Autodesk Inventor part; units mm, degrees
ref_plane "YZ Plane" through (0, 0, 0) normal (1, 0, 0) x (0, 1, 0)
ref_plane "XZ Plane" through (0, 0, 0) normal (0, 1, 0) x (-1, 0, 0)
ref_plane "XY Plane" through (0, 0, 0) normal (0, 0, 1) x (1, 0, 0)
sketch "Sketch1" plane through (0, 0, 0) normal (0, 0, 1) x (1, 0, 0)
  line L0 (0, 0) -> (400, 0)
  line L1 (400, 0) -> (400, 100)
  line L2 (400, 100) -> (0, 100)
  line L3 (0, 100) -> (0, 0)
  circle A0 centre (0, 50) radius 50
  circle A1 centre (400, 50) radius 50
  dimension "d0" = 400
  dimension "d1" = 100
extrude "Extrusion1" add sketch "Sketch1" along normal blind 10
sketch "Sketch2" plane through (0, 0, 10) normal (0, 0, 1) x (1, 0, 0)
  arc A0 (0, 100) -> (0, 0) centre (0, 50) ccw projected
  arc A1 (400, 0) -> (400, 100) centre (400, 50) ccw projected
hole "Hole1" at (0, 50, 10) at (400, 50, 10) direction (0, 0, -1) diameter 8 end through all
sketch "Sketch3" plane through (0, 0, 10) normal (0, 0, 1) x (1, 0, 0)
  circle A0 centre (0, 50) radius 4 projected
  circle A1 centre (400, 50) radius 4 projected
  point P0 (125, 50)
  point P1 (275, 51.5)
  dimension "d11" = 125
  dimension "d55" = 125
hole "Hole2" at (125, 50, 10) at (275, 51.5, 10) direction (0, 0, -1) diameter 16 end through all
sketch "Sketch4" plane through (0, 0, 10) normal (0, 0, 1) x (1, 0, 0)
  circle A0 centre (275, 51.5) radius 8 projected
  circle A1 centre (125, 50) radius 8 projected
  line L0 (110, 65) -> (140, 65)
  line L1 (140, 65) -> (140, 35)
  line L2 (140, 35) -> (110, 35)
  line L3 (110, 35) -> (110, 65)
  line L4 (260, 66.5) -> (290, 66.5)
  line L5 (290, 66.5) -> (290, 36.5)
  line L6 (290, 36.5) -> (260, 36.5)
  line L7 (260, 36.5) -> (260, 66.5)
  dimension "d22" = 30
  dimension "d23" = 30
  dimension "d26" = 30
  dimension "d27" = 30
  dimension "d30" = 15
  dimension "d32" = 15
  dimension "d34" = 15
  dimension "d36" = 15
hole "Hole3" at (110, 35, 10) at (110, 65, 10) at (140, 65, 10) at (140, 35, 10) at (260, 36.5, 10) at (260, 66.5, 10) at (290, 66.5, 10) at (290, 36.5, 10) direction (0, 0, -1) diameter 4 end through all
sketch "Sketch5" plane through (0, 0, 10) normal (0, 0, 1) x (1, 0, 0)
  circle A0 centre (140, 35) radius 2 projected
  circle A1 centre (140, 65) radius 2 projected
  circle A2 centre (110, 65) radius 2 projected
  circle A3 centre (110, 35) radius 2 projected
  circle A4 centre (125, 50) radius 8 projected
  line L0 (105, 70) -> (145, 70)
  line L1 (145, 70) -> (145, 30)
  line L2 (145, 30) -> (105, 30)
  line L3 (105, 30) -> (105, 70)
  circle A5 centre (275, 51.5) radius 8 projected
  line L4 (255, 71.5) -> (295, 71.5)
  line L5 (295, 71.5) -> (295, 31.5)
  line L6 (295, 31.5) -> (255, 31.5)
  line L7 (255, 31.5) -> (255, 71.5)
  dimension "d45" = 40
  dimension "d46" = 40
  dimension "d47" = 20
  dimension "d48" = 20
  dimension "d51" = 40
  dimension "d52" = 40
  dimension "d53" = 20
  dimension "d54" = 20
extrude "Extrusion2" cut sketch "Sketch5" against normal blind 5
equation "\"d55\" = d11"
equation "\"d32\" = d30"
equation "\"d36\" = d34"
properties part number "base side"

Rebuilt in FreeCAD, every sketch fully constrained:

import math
import FreeCAD as App
import Part
import Sketcher
from FreeCAD import Vector
Q = App.Units.Quantity

doc = App.newDocument("Part")
body = doc.addObject("PartDesign::Body", "Body")

# Sketch on XY plane
sketch1 = body.newObject("Sketcher::SketchObject", "Sketch")
sketch1.AttachmentSupport = (doc.getObject("XY_Plane"), [""])
sketch1.MapMode = "FlatFace"
sketch1.addGeometry(Part.LineSegment(Vector(400, 100, 0), Vector(0, 100, 0)), False)
sketch1.addGeometry(Part.ArcOfCircle(Part.Circle(Vector(0, 50, 0), Vector(0, 0, 1), 50), math.radians(90), math.radians(270)), False)
sketch1.addGeometry(Part.LineSegment(Vector(0, 0, 0), Vector(400, 0, 0)), False)
sketch1.addGeometry(Part.ArcOfCircle(Part.Circle(Vector(400, 50, 0), Vector(0, 0, 1), 50), math.radians(-90), math.radians(90)), False)
sketch1.addConstraint(Sketcher.Constraint("Tangent", 0, 2, 1, 1))
sketch1.addConstraint(Sketcher.Constraint("Tangent", 1, 2, 2, 1))
sketch1.addConstraint(Sketcher.Constraint("Tangent", 2, 2, 3, 1))
sketch1.addConstraint(Sketcher.Constraint("Tangent", 3, 2, 0, 1))
sketch1.addConstraint(Sketcher.Constraint("Horizontal", 0))
sketch1.addConstraint(Sketcher.Constraint("Horizontal", 2))
sketch1.addConstraint(Sketcher.Constraint("Coincident", 1, 2, -1, 1))
sketch1.addConstraint(Sketcher.Constraint("Radius", 1, Q("50 mm")))
sketch1.addConstraint(Sketcher.Constraint("DistanceX", 0, 2, 0, 1, Q("400 mm")))
pad1 = body.newObject("PartDesign::Pad", "Pad")
pad1.Profile = sketch1
pad1.Length = 10

# Sketch on XY plane
sketch2 = body.newObject("Sketcher::SketchObject", "Sketch001")
sketch2.AttachmentSupport = (doc.getObject("XY_Plane"), [""])
sketch2.MapMode = "FlatFace"
sketch2.AttachmentOffset = App.Placement(Vector(0, 0, 10), App.Rotation())
sketch2.addGeometry(Part.Circle(Vector(0, 50, 0), Vector(0, 0, 1), 4), False)
sketch2.addGeometry(Part.Circle(Vector(400, 50, 0), Vector(0, 0, 1), 4), False)
sketch2.addConstraint(Sketcher.Constraint("Equal", 0, 1))
sketch2.addConstraint(Sketcher.Constraint("PointOnObject", 0, 3, -2))
sketch2.addConstraint(Sketcher.Constraint("Horizontal", 0, 3, 1, 3))
sketch2.addConstraint(Sketcher.Constraint("Diameter", 0, Q("8 mm")))
sketch2.addConstraint(Sketcher.Constraint("DistanceY", -1, 1, 0, 3, Q("50 mm")))
sketch2.addConstraint(Sketcher.Constraint("DistanceX", -1, 1, 1, 3, Q("400 mm")))
doc.recompute()
hole = body.newObject("PartDesign::Hole", "Hole")
hole.Profile = sketch2
hole.ThreadType = "None"
hole.Diameter = 8
hole.DepthType = "ThroughAll"

# Sketch on XY plane
sketch3 = body.newObject("Sketcher::SketchObject", "Sketch002")
sketch3.AttachmentSupport = (doc.getObject("XY_Plane"), [""])
sketch3.MapMode = "FlatFace"
sketch3.AttachmentOffset = App.Placement(Vector(0, 0, 10), App.Rotation())
sketch3.addGeometry(Part.Circle(Vector(125, 50, 0), Vector(0, 0, 1), 8), False)
sketch3.addGeometry(Part.Circle(Vector(275, 52, 0), Vector(0, 0, 1), 8), False)
sketch3.addConstraint(Sketcher.Constraint("Equal", 0, 1))
sketch3.addConstraint(Sketcher.Constraint("Diameter", 0, Q("16 mm")))
sketch3.addConstraint(Sketcher.Constraint("DistanceX", -1, 1, 0, 3, Q("125 mm")))
sketch3.addConstraint(Sketcher.Constraint("DistanceY", -1, 1, 0, 3, Q("50 mm")))
sketch3.addConstraint(Sketcher.Constraint("DistanceX", -1, 1, 1, 3, Q("275 mm")))
sketch3.addConstraint(Sketcher.Constraint("DistanceY", -1, 1, 1, 3, Q("51.5 mm")))
doc.recompute()
hole2 = body.newObject("PartDesign::Hole", "Hole001")
hole2.Profile = sketch3
hole2.ThreadType = "None"
hole2.Diameter = 16
hole2.DepthType = "ThroughAll"

# Sketch on XY plane
sketch4 = body.newObject("Sketcher::SketchObject", "Sketch003")
sketch4.AttachmentSupport = (doc.getObject("XY_Plane"), [""])
sketch4.MapMode = "FlatFace"
sketch4.AttachmentOffset = App.Placement(Vector(0, 0, 10), App.Rotation())
sketch4.addGeometry(Part.Circle(Vector(110, 35, 0), Vector(0, 0, 1), 2), False)
sketch4.addGeometry(Part.Circle(Vector(110, 65, 0), Vector(0, 0, 1), 2), False)
sketch4.addGeometry(Part.Circle(Vector(140, 65, 0), Vector(0, 0, 1), 2), False)
sketch4.addGeometry(Part.Circle(Vector(140, 35, 0), Vector(0, 0, 1), 2), False)
sketch4.addGeometry(Part.Circle(Vector(260, 36.5, 0), Vector(0, 0, 1), 2), False)
sketch4.addGeometry(Part.Circle(Vector(260, 66.5, 0), Vector(0, 0, 1), 2), False)
sketch4.addGeometry(Part.Circle(Vector(290, 66.5, 0), Vector(0, 0, 1), 2), False)
sketch4.addGeometry(Part.Circle(Vector(290, 36.5, 0), Vector(0, 0, 1), 2), False)
sketch4.addConstraint(Sketcher.Constraint("Equal", 0, 1))
sketch4.addConstraint(Sketcher.Constraint("Equal", 1, 2))
sketch4.addConstraint(Sketcher.Constraint("Equal", 2, 3))
sketch4.addConstraint(Sketcher.Constraint("Equal", 3, 4))
sketch4.addConstraint(Sketcher.Constraint("Equal", 4, 5))
sketch4.addConstraint(Sketcher.Constraint("Equal", 5, 6))
sketch4.addConstraint(Sketcher.Constraint("Equal", 6, 7))
sketch4.addConstraint(Sketcher.Constraint("Horizontal", 1, 3, 2, 3))
sketch4.addConstraint(Sketcher.Constraint("Horizontal", 0, 3, 3, 3))
sketch4.addConstraint(Sketcher.Constraint("Horizontal", 5, 3, 6, 3))
sketch4.addConstraint(Sketcher.Constraint("Horizontal", 4, 3, 7, 3))
sketch4.addConstraint(Sketcher.Constraint("Vertical", 0, 3, 1, 3))
sketch4.addConstraint(Sketcher.Constraint("Vertical", 2, 3, 3, 3))
sketch4.addConstraint(Sketcher.Constraint("Vertical", 4, 3, 5, 3))
sketch4.addConstraint(Sketcher.Constraint("Vertical", 6, 3, 7, 3))
sketch4.addConstraint(Sketcher.Constraint("Diameter", 0, Q("4 mm")))
sketch4.addConstraint(Sketcher.Constraint("DistanceX", -1, 1, 0, 3, Q("110 mm")))
sketch4.addConstraint(Sketcher.Constraint("DistanceY", -1, 1, 0, 3, Q("35 mm")))
sketch4.addConstraint(Sketcher.Constraint("DistanceY", -1, 1, 1, 3, Q("65 mm")))
sketch4.addConstraint(Sketcher.Constraint("DistanceX", -1, 1, 2, 3, Q("140 mm")))
sketch4.addConstraint(Sketcher.Constraint("DistanceX", -1, 1, 4, 3, Q("260 mm")))
sketch4.addConstraint(Sketcher.Constraint("DistanceX", -1, 1, 6, 3, Q("290 mm")))
sketch4.addConstraint(Sketcher.Constraint("DistanceY", 4, 3, 5, 3, Q("30 mm")))
sketch4.addConstraint(Sketcher.Constraint("DistanceY", -1, 1, 4, 3, Q("36.5 mm")))
doc.recompute()
hole3 = body.newObject("PartDesign::Hole", "Hole002")
hole3.Profile = sketch4
hole3.ThreadType = "None"
hole3.Diameter = 4
hole3.DepthType = "ThroughAll"

# Sketch on XY plane
sketch5 = body.newObject("Sketcher::SketchObject", "Sketch004")
sketch5.AttachmentSupport = (doc.getObject("XY_Plane"), [""])
sketch5.MapMode = "FlatFace"
sketch5.AttachmentOffset = App.Placement(Vector(0, 0, 10), App.Rotation())
sketch5.addGeometry(Part.LineSegment(Vector(145, 70, 0), Vector(105, 70, 0)), False)
sketch5.addGeometry(Part.LineSegment(Vector(105, 70, 0), Vector(105, 30, 0)), False)
sketch5.addGeometry(Part.LineSegment(Vector(105, 30, 0), Vector(145, 30, 0)), False)
sketch5.addGeometry(Part.LineSegment(Vector(145, 30, 0), Vector(145, 70, 0)), False)
sketch5.addGeometry(Part.Circle(Vector(110, 35, 0), Vector(0, 0, 1), 2), False)
sketch5.addGeometry(Part.Circle(Vector(140, 35, 0), Vector(0, 0, 1), 2), False)
sketch5.addGeometry(Part.Circle(Vector(125, 50, 0), Vector(0, 0, 1), 8), False)
sketch5.addGeometry(Part.Circle(Vector(110, 65, 0), Vector(0, 0, 1), 2), False)
sketch5.addGeometry(Part.Circle(Vector(140, 65, 0), Vector(0, 0, 1), 2), False)
sketch5.addGeometry(Part.LineSegment(Vector(295, 71.5, 0), Vector(255, 71.5, 0)), False)
sketch5.addGeometry(Part.LineSegment(Vector(255, 71.5, 0), Vector(255, 31.5, 0)), False)
sketch5.addGeometry(Part.LineSegment(Vector(255, 31.5, 0), Vector(295, 31.5, 0)), False)
sketch5.addGeometry(Part.LineSegment(Vector(295, 31.5, 0), Vector(295, 71.5, 0)), False)
sketch5.addGeometry(Part.Circle(Vector(275, 51.5, 0), Vector(0, 0, 1), 8), False)
sketch5.addConstraint(Sketcher.Constraint("Coincident", 0, 2, 1, 1))
sketch5.addConstraint(Sketcher.Constraint("Coincident", 1, 2, 2, 1))
sketch5.addConstraint(Sketcher.Constraint("Coincident", 2, 2, 3, 1))
sketch5.addConstraint(Sketcher.Constraint("Coincident", 3, 2, 0, 1))
sketch5.addConstraint(Sketcher.Constraint("Coincident", 9, 2, 10, 1))
sketch5.addConstraint(Sketcher.Constraint("Coincident", 10, 2, 11, 1))
sketch5.addConstraint(Sketcher.Constraint("Coincident", 11, 2, 12, 1))
sketch5.addConstraint(Sketcher.Constraint("Coincident", 12, 2, 9, 1))
sketch5.addConstraint(Sketcher.Constraint("Horizontal", 0))
sketch5.addConstraint(Sketcher.Constraint("Vertical", 1))
sketch5.addConstraint(Sketcher.Constraint("Horizontal", 2))
sketch5.addConstraint(Sketcher.Constraint("Vertical", 3))
sketch5.addConstraint(Sketcher.Constraint("Horizontal", 9))
sketch5.addConstraint(Sketcher.Constraint("Vertical", 10))
sketch5.addConstraint(Sketcher.Constraint("Horizontal", 11))
sketch5.addConstraint(Sketcher.Constraint("Vertical", 12))
sketch5.addConstraint(Sketcher.Constraint("Equal", 4, 5))
sketch5.addConstraint(Sketcher.Constraint("Equal", 5, 7))
sketch5.addConstraint(Sketcher.Constraint("Equal", 7, 8))
sketch5.addConstraint(Sketcher.Constraint("Equal", 6, 13))
sketch5.addConstraint(Sketcher.Constraint("Horizontal", 4, 3, 5, 3))
sketch5.addConstraint(Sketcher.Constraint("Horizontal", 7, 3, 8, 3))
sketch5.addConstraint(Sketcher.Constraint("Vertical", 4, 3, 7, 3))
sketch5.addConstraint(Sketcher.Constraint("Vertical", 5, 3, 8, 3))
sketch5.addConstraint(Sketcher.Constraint("Equal", 2, 9))
sketch5.addConstraint(Sketcher.Constraint("Equal", 11, 1))
sketch5.addConstraint(Sketcher.Constraint("Equal", 3, 10))
sketch5.addConstraint(Sketcher.Constraint("DistanceX", 0, 2, 0, 1, Q("40 mm")))
sketch5.addConstraint(Sketcher.Constraint("Diameter", 4, Q("4 mm")))
sketch5.addConstraint(Sketcher.Constraint("Diameter", 6, Q("16 mm")))
sketch5.addConstraint(Sketcher.Constraint("DistanceX", 0, 2, 6, 3, Q("20 mm")))
sketch5.addConstraint(Sketcher.Constraint("DistanceY", 6, 3, 0, 2, Q("20 mm")))
sketch5.addConstraint(Sketcher.Constraint("DistanceX", 9, 2, 13, 3, Q("20 mm")))
sketch5.addConstraint(Sketcher.Constraint("DistanceY", 13, 3, 9, 2, Q("20 mm")))
sketch5.addConstraint(Sketcher.Constraint("DistanceX", -1, 1, 4, 3, Q("110 mm")))
sketch5.addConstraint(Sketcher.Constraint("DistanceY", -1, 1, 4, 3, Q("35 mm")))
sketch5.addConstraint(Sketcher.Constraint("DistanceX", -1, 1, 5, 3, Q("140 mm")))
sketch5.addConstraint(Sketcher.Constraint("DistanceX", -1, 1, 6, 3, Q("125 mm")))
sketch5.addConstraint(Sketcher.Constraint("DistanceY", -1, 1, 6, 3, Q("50 mm")))
sketch5.addConstraint(Sketcher.Constraint("DistanceY", -1, 1, 7, 3, Q("65 mm")))
sketch5.addConstraint(Sketcher.Constraint("DistanceX", -1, 1, 13, 3, Q("275 mm")))
sketch5.addConstraint(Sketcher.Constraint("DistanceY", -1, 1, 13, 3, Q("51.5 mm")))
pocket1 = body.newObject("PartDesign::Pocket", "Pocket")
pocket1.Profile = sketch5
pocket1.Length = 5

doc.recompute()
